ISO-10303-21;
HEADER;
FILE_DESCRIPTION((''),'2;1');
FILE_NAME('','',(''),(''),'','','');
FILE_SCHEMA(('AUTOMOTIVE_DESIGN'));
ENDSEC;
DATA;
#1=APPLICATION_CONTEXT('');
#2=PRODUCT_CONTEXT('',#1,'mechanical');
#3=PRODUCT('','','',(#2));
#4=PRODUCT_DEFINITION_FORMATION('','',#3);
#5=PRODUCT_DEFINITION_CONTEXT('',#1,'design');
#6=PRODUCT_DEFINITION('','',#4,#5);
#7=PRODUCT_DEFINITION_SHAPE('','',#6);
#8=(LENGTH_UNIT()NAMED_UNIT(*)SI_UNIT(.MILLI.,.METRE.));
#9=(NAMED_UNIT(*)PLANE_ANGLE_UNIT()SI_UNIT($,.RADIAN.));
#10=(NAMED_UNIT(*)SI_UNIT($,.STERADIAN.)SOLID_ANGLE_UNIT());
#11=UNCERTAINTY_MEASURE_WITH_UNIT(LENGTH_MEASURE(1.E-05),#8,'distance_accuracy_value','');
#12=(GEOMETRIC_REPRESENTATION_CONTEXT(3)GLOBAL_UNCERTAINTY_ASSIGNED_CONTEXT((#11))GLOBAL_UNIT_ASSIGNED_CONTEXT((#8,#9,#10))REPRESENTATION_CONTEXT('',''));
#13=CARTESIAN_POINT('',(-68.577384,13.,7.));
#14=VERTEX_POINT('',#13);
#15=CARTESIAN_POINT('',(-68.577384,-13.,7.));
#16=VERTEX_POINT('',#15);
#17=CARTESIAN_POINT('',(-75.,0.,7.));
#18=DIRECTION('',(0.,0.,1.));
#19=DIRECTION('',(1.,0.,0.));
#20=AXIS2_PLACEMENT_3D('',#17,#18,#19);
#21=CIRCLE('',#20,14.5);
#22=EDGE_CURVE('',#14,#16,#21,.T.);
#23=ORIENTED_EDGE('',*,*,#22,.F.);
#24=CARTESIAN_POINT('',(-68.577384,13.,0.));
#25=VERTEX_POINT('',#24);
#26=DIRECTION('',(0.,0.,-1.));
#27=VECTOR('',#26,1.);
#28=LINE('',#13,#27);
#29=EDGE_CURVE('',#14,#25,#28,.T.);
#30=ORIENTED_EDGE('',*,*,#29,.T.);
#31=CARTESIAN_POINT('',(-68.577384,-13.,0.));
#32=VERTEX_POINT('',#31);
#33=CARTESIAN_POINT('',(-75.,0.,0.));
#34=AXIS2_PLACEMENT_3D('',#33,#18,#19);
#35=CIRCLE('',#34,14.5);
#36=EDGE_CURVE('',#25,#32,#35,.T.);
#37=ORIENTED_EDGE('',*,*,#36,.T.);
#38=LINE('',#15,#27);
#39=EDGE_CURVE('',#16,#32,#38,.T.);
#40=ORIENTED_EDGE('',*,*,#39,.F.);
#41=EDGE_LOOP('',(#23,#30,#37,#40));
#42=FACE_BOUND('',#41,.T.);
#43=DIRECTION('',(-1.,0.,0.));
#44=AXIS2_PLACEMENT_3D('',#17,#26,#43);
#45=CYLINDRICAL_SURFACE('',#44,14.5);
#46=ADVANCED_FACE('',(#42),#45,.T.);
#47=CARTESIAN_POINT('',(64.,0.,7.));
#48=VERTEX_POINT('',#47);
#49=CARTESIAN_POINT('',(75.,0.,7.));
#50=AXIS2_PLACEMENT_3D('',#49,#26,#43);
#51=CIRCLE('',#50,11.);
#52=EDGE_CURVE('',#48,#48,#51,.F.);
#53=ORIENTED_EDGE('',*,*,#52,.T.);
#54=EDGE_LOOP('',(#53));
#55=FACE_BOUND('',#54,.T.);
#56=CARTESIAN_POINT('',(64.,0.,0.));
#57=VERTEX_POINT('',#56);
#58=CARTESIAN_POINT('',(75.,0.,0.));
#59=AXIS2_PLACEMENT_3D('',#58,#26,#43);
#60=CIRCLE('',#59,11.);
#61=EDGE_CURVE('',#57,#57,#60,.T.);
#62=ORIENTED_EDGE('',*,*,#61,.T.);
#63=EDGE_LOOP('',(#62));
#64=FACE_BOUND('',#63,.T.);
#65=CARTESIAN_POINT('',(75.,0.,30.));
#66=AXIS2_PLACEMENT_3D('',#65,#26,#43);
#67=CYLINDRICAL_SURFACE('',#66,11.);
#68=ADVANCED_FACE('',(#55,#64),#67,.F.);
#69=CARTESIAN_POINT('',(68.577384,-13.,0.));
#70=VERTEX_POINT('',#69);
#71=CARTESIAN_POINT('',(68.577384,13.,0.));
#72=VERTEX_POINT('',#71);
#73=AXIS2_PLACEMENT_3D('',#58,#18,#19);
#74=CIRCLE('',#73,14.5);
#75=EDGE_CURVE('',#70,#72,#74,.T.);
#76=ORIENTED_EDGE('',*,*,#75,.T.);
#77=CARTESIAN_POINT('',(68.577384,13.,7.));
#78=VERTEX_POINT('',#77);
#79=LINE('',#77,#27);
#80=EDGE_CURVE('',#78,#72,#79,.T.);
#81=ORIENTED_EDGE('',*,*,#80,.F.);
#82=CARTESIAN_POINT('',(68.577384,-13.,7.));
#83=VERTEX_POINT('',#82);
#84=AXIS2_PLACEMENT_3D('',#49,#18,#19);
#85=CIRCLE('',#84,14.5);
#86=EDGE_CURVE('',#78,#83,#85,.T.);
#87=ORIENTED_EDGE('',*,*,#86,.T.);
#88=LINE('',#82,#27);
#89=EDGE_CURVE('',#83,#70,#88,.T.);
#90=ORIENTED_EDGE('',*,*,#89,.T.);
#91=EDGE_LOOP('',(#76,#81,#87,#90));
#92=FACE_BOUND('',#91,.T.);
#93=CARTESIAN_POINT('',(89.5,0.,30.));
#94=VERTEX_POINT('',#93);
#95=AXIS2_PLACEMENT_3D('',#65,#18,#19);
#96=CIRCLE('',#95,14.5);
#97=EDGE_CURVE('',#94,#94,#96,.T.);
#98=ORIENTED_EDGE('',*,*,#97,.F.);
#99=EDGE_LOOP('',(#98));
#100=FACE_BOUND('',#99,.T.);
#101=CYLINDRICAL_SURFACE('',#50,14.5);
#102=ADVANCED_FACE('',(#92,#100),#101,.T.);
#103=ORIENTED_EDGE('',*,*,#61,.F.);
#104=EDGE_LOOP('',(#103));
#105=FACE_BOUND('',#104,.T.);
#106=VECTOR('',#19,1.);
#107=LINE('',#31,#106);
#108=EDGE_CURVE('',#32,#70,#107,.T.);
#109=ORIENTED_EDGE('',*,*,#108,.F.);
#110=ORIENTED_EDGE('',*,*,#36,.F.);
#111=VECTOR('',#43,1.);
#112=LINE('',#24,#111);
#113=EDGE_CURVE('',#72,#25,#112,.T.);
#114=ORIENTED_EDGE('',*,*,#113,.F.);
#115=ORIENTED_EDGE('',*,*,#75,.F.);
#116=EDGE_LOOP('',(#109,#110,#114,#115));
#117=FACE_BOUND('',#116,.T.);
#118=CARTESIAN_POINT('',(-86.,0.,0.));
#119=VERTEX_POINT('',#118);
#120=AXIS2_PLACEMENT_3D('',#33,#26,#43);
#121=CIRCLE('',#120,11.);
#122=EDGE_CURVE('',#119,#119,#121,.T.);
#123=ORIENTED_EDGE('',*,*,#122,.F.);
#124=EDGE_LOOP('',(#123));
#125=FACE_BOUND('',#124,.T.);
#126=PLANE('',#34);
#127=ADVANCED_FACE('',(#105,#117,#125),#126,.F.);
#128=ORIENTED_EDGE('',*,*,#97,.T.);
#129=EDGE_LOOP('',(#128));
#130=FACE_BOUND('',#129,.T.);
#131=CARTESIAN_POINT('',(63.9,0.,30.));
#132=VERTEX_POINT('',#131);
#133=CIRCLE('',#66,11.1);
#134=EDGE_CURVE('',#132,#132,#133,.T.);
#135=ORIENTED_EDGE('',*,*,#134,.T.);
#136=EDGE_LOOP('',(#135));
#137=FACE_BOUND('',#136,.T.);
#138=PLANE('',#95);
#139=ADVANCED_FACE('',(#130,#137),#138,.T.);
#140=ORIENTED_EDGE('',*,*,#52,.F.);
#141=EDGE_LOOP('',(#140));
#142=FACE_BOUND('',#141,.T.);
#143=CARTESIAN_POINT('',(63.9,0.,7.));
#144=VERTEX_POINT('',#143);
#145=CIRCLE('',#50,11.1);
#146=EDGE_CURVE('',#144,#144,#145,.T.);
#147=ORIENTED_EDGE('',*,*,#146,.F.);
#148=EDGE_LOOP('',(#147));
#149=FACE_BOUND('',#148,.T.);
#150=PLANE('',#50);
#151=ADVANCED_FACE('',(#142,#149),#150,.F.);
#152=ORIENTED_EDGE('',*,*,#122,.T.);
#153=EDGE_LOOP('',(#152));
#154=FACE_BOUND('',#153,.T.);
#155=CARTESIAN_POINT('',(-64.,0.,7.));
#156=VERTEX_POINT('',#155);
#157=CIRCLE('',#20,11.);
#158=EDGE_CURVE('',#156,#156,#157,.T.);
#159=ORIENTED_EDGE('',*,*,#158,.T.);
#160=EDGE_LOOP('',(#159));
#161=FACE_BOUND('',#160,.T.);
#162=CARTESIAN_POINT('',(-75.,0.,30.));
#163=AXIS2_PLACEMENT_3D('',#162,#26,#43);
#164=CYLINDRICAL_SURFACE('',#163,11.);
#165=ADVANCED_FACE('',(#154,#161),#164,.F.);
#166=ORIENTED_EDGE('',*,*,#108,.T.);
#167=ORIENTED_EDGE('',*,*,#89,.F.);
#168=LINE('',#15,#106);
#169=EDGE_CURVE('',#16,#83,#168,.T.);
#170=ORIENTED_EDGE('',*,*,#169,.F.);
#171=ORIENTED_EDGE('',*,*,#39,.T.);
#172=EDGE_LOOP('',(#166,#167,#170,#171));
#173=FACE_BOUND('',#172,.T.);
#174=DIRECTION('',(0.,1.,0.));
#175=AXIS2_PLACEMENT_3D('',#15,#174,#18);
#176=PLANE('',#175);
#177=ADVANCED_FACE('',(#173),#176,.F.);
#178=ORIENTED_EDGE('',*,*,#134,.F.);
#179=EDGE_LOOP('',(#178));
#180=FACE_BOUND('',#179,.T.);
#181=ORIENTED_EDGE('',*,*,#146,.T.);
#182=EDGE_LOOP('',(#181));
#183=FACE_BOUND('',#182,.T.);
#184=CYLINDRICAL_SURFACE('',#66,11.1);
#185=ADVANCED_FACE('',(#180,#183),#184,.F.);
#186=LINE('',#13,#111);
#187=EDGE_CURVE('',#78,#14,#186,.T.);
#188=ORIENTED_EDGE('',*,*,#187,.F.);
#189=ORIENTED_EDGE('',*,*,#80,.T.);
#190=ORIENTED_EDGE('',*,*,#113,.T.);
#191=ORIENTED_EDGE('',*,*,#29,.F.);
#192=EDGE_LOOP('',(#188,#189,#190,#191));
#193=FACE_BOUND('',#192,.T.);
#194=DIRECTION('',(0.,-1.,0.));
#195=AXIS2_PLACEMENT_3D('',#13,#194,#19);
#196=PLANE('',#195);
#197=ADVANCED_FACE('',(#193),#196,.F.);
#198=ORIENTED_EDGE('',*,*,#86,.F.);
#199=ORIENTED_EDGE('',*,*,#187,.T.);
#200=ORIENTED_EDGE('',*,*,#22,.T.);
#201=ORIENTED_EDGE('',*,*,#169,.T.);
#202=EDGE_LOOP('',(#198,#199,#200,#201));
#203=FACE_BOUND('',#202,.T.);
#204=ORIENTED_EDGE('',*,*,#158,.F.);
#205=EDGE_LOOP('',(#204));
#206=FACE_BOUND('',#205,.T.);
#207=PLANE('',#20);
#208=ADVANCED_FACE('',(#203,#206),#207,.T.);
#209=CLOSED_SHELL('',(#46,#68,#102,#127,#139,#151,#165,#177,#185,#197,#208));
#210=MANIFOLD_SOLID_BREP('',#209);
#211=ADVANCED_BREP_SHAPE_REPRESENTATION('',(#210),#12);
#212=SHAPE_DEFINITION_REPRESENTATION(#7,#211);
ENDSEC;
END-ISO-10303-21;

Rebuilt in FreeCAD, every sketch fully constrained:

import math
import FreeCAD as App
import Part
import Sketcher
from FreeCAD import Vector

doc = App.newDocument("Part")
body = doc.addObject("PartDesign::Body", "Body")

# Sketch on XY plane
sketch1 = body.newObject("Sketcher::SketchObject", "Sketch")
sketch1.AttachmentSupport = (doc.getObject("XY_Plane"), [""])
sketch1.MapMode = "FlatFace"
sketch1.addGeometry(Part.LineSegment(Vector(69, 13, 0), Vector(-69, 13, 0)), False)
sketch1.addGeometry(Part.ArcOfCircle(Part.Circle(Vector(-75, 0, 0), Vector(0, 0, 1), 14), math.radians(64), math.radians(296)), False)
sketch1.addGeometry(Part.LineSegment(Vector(-69, -13, 0), Vector(69, -13, 0)), False)
sketch1.addGeometry(Part.ArcOfCircle(Part.Circle(Vector(75, 0, 0), Vector(0, 0, 1), 14), math.radians(-116), math.radians(116)), False)
sketch1.addConstraint(Sketcher.Constraint("Coincident", 0, 2, 1, 1))
sketch1.addConstraint(Sketcher.Constraint("Coincident", 1, 2, 2, 1))
sketch1.addConstraint(Sketcher.Constraint("Coincident", 2, 2, 3, 1))
sketch1.addConstraint(Sketcher.Constraint("Coincident", 3, 2, 0, 1))
sketch1.addConstraint(Sketcher.Constraint("Horizontal", 0))
sketch1.addConstraint(Sketcher.Constraint("Horizontal", 2))
sketch1.addConstraint(Sketcher.Constraint("Equal", 1, 3))
sketch1.addConstraint(Sketcher.Constraint("Symmetric", 1, 3, 3, 3, -1, 1))
sketch1.addConstraint(Sketcher.Constraint("Symmetric", 0, 2, 1, 2, -1))
sketch1.addConstraint(Sketcher.Constraint("Radius", 1, 14.5))
sketch1.addConstraint(Sketcher.Constraint("DistanceX", 1, 3, -1, 1, 75.0))
sketch1.addConstraint(Sketcher.Constraint("DistanceY", -1, 1, 0, 2, 13.0))
pad1 = body.newObject("PartDesign::Pad", "Pad")
pad1.Profile = sketch1
pad1.Length = 7

# Sketch on XY plane
sketch2 = body.newObject("Sketcher::SketchObject", "Sketch001")
sketch2.AttachmentSupport = (doc.getObject("XY_Plane"), [""])
sketch2.MapMode = "FlatFace"
sketch2.AttachmentOffset = App.Placement(Vector(0, 0, 7), App.Rotation())
sketch2.addGeometry(Part.Circle(Vector(75, 0, 0), Vector(0, 0, 1), 14), False)
sketch2.addConstraint(Sketcher.Constraint("PointOnObject", 0, 3, -1))
sketch2.addConstraint(Sketcher.Constraint("Diameter", 0, 29.0))
sketch2.addConstraint(Sketcher.Constraint("DistanceX", -1, 1, 0, 3, 75.0))
pad2 = body.newObject("PartDesign::Pad", "Pad001")
pad2.Profile = sketch2
pad2.Length = 23

# Sketch on XY plane
sketch3 = body.newObject("Sketcher::SketchObject", "Sketch002")
sketch3.AttachmentSupport = (doc.getObject("XY_Plane"), [""])
sketch3.MapMode = "FlatFace"
sketch3.addGeometry(Part.Circle(Vector(75, 0, 0), Vector(0, 0, 1), 11), False)
sketch3.addGeometry(Part.Circle(Vector(-75, 0, 0), Vector(0, 0, 1), 11), False)
sketch3.addConstraint(Sketcher.Constraint("Equal", 0, 1))
sketch3.addConstraint(Sketcher.Constraint("Symmetric", 0, 3, 1, 3, -1, 1))
sketch3.addConstraint(Sketcher.Constraint("PointOnObject", 0, 3, -1))
sketch3.addConstraint(Sketcher.Constraint("Diameter", 0, 22.0))
sketch3.addConstraint(Sketcher.Constraint("DistanceX", -1, 1, 0, 3, 75.0))
pocket1 = body.newObject("PartDesign::Pocket", "Pocket")
pocket1.Profile = sketch3
pocket1.Type = "ThroughAll"
pocket1.Reversed = True

# Sketch on XY plane
sketch4 = body.newObject("Sketcher::SketchObject", "Sketch003")
sketch4.AttachmentSupport = (doc.getObject("XY_Plane"), [""])
sketch4.MapMode = "FlatFace"
sketch4.AttachmentOffset = App.Placement(Vector(0, 0, 7), App.Rotation())
sketch4.addGeometry(Part.Circle(Vector(75, 0, 0), Vector(0, 0, 1), 11), False)
sketch4.addConstraint(Sketcher.Constraint("PointOnObject", 0, 3, -1))
sketch4.addConstraint(Sketcher.Constraint("Diameter", 0, 22.2))
sketch4.addConstraint(Sketcher.Constraint("DistanceX", -1, 1, 0, 3, 75.0))
pocket2 = body.newObject("PartDesign::Pocket", "Pocket001")
pocket2.Profile = sketch4
pocket2.Type = "ThroughAll"
pocket2.Reversed = True

doc.recompute()
